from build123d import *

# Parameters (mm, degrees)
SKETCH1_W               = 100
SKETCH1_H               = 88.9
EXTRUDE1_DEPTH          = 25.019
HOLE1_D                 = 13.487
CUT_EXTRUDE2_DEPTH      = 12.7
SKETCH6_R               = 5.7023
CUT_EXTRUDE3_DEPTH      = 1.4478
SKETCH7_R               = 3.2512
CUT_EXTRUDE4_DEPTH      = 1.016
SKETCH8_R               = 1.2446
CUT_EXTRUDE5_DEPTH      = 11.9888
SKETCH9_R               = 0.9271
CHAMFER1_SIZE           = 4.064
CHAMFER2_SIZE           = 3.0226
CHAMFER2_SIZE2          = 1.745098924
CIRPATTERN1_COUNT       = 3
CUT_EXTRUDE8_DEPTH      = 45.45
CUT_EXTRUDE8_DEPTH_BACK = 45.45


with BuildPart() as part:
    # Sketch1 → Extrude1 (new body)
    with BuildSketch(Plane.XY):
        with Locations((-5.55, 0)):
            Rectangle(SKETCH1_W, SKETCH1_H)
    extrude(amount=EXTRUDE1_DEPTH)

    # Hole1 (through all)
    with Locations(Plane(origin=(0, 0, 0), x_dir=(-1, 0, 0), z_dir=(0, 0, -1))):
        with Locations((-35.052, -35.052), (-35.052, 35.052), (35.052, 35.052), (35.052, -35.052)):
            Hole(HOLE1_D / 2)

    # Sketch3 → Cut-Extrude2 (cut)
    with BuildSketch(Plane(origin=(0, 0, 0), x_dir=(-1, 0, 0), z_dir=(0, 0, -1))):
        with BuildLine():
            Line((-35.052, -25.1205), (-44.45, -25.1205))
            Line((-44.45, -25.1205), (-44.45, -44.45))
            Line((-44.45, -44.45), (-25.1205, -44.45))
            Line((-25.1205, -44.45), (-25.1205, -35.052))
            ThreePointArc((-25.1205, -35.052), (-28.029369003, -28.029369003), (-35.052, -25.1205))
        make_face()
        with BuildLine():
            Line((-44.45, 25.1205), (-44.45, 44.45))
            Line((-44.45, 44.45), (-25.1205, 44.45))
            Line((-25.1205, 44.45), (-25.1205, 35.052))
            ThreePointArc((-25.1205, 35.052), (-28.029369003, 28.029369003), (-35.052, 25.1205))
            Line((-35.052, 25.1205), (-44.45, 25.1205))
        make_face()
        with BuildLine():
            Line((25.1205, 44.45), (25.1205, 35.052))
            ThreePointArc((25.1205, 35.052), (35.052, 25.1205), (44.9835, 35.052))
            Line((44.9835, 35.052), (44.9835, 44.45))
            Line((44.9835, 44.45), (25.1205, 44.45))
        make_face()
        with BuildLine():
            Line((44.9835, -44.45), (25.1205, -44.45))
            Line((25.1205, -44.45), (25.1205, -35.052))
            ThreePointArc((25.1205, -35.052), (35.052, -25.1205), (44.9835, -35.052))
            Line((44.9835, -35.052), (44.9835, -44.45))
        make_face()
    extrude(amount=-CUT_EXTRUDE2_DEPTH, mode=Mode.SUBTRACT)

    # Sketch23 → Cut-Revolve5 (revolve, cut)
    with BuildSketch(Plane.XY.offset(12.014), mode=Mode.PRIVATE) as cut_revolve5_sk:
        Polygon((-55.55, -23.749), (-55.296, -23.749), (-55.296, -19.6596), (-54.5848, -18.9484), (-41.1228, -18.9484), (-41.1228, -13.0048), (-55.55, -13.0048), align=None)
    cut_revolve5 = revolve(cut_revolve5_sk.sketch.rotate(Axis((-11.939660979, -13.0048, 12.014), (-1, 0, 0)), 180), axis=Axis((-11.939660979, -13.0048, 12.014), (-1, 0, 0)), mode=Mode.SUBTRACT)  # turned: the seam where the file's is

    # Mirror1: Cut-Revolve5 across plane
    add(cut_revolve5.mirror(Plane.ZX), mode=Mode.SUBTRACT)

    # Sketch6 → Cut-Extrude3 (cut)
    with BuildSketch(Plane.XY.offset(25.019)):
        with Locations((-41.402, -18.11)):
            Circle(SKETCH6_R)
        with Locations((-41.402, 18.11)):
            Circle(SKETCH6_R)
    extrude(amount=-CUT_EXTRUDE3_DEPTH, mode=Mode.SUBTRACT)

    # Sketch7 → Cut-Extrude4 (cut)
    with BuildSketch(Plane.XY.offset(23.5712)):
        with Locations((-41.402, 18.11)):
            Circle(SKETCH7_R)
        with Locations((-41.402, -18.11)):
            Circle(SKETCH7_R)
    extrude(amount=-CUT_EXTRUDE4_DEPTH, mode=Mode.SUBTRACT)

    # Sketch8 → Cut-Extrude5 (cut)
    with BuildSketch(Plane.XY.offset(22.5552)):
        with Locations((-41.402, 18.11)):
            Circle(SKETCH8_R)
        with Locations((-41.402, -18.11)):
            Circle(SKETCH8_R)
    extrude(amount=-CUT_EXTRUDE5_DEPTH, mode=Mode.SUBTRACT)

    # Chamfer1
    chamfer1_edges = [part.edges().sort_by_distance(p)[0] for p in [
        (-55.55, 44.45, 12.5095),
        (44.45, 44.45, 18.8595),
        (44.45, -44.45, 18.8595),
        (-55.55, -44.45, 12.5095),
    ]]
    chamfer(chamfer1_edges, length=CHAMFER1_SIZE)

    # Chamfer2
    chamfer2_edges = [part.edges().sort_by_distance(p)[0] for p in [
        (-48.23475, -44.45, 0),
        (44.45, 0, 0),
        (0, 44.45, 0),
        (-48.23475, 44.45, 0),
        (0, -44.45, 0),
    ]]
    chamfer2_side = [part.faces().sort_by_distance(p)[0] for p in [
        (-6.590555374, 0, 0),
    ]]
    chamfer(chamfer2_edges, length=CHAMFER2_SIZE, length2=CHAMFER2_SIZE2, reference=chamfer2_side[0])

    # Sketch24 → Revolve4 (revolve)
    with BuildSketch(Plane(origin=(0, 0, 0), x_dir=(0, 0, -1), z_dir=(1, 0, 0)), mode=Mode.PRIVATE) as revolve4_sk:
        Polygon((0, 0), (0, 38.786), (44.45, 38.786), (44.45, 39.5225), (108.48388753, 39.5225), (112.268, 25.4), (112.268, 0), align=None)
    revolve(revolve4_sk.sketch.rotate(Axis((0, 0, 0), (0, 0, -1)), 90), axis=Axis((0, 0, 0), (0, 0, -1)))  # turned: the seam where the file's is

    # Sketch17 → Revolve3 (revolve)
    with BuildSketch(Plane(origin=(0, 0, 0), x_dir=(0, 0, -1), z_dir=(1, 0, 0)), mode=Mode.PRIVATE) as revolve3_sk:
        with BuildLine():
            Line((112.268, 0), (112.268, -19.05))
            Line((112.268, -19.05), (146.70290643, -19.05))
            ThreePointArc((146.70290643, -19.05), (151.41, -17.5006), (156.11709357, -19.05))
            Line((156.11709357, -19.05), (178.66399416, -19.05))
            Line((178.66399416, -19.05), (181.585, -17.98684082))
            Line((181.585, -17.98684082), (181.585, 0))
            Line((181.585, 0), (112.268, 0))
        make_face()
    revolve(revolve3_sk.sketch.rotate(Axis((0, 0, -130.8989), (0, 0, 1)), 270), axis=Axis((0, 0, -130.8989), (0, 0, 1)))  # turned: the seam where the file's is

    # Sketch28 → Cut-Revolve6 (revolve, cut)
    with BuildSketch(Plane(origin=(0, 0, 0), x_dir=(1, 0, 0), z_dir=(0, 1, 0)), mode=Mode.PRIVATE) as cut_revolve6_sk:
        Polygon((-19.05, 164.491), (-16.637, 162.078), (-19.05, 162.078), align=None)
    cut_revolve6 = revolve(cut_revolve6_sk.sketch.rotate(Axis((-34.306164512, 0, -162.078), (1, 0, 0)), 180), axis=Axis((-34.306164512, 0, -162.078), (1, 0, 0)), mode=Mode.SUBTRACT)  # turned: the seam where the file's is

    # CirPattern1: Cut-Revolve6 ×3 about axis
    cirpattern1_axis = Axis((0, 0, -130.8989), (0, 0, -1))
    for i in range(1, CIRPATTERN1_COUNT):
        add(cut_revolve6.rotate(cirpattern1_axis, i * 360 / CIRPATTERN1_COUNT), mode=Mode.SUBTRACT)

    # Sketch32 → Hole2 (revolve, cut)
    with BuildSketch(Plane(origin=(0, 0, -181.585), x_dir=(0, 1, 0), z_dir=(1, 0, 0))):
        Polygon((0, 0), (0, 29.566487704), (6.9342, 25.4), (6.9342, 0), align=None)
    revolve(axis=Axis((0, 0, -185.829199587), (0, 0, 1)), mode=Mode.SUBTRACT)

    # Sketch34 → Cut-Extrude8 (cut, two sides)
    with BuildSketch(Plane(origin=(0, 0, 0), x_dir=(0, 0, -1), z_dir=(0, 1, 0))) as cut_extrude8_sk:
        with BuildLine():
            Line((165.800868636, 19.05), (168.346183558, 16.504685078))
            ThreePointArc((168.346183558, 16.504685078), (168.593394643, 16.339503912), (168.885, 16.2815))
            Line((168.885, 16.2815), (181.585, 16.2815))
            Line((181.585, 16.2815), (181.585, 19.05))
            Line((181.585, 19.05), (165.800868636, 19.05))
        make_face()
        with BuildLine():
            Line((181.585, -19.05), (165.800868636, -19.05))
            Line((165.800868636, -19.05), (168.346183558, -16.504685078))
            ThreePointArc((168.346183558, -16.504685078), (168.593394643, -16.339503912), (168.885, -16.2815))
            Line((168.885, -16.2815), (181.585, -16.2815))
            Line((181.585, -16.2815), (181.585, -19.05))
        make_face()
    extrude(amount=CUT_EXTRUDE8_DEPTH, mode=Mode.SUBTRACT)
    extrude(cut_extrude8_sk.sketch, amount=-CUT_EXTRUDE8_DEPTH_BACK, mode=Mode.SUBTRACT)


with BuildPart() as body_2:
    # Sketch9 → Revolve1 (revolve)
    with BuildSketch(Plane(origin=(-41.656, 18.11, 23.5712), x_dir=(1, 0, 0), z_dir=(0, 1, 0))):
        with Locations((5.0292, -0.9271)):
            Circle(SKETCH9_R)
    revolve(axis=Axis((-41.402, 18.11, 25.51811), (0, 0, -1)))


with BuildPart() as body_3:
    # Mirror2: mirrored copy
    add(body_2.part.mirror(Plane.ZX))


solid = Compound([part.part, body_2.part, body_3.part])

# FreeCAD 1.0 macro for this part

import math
import FreeCAD as App
import Part
import Sketcher

V = App.Vector
Q = App.Units.Quantity


def edges_at(feature, points):
    """Names of the edges that pass closest to the given points."""
    edges = feature.Shape.Edges
    near = lambda p: min(range(len(edges)), key=lambda i: edges[i].distToShape(Part.Vertex(*p))[0])
    return sorted({f"Edge{near(p) + 1}" for p in points})

doc = App.newDocument("Part")
body = doc.addObject("PartDesign::Body", "Body")

sketch1 = body.newObject("Sketcher::SketchObject", "Sketch")
sketch1.AttachmentSupport = (doc.getObject("XY_Plane"), [""])
sketch1.MapMode = "FlatFace"
sketch1.addGeometry(Part.LineSegment(V(-55.55, 44.45, 0), V(-55.55, -44.45, 0)), False)
sketch1.addGeometry(Part.LineSegment(V(-55.55, -44.45, 0), V(44.45, -44.45, 0)), False)
sketch1.addGeometry(Part.LineSegment(V(44.45, -44.45, 0), V(44.45, 44.45, 0)), False)
sketch1.addGeometry(Part.LineSegment(V(44.45, 44.45, 0), V(-55.55, 44.45, 0)), False)
sketch1.addConstraint(Sketcher.Constraint("Coincident", 0, 2, 1, 1))
sketch1.addConstraint(Sketcher.Constraint("Coincident", 1, 2, 2, 1))
sketch1.addConstraint(Sketcher.Constraint("Coincident", 2, 2, 3, 1))
sketch1.addConstraint(Sketcher.Constraint("Coincident", 3, 2, 0, 1))
sketch1.addConstraint(Sketcher.Constraint("Vertical", 0))
sketch1.addConstraint(Sketcher.Constraint("Horizontal", 1))
sketch1.addConstraint(Sketcher.Constraint("Vertical", 2))
sketch1.addConstraint(Sketcher.Constraint("Horizontal", 3))
sketch1.addConstraint(Sketcher.Constraint("DistanceY", 0, 2, 0, 1, Q("3.5 in")))
sketch1.addConstraint(Sketcher.Constraint("DistanceY", 0, 2, -1, 1, Q("1.75 in")))
sketch1.addConstraint(Sketcher.Constraint("DistanceX", -1, 1, 1, 2, Q("1.75 in")))
sketch1.addConstraint(Sketcher.Constraint("DistanceX", 1, 1, 1, 2, Q("100 mm")))
pad1 = body.newObject("PartDesign::Pad", "Pad")
pad1.Profile = sketch1
pad1.Length = Q("0.985 in")

sketch2 = body.newObject("Sketcher::SketchObject", "Sketch001")
sketch2.AttachmentSupport = (doc.getObject("XY_Plane"), [""])
sketch2.MapMode = "FlatFace"
sketch2.addGeometry(Part.Circle(V(35.052, -35.052, 0), V(0, 0, 1), 6.7435), False)
sketch2.addGeometry(Part.Circle(V(35.052, 35.052, 0), V(0, 0, 1), 6.7435), False)
sketch2.addGeometry(Part.Circle(V(-35.052, 35.052, 0), V(0, 0, 1), 6.7435), False)
sketch2.addGeometry(Part.Circle(V(-35.052, -35.052, 0), V(0, 0, 1), 6.7435), False)
sketch2.addConstraint(Sketcher.Constraint("Equal", 0, 1))
sketch2.addConstraint(Sketcher.Constraint("Equal", 1, 2))
sketch2.addConstraint(Sketcher.Constraint("Equal", 2, 3))
sketch2.addConstraint(Sketcher.Constraint("Symmetric", 0, 3, 2, 3, -1, 1))
sketch2.addConstraint(Sketcher.Constraint("Symmetric", 1, 3, 3, 3, -1, 1))
sketch2.addConstraint(Sketcher.Constraint("Symmetric", 1, 3, 2, 3, -2))
sketch2.addConstraint(Sketcher.Constraint("Diameter", 0, Q("13.487 mm")))
sketch2.addConstraint(Sketcher.Constraint("DistanceX", -1, 1, 0, 3, Q("1.38 in")))
sketch2.addConstraint(Sketcher.Constraint("DistanceY", 0, 3, -1, 1, Q("1.38 in")))
doc.recompute()
hole = body.newObject("PartDesign::Hole", "Hole")
hole.Profile = sketch2
hole.ThreadType = "None"
hole.Diameter = 13.487
hole.DepthType = "ThroughAll"
hole.Reversed = True

sketch3 = body.newObject("Sketcher::SketchObject", "Sketch002")
sketch3.AttachmentSupport = (doc.getObject("XY_Plane"), [""])
sketch3.MapMode = "FlatFace"
sketch3.addGeometry(Part.LineSegment(V(35.052, -25.1205, 0), V(44.45, -25.1205, 0)), False)
sketch3.addGeometry(Part.LineSegment(V(44.45, -25.1205, 0), V(44.45, -44.45, 0)), False)
sketch3.addGeometry(Part.LineSegment(V(44.45, -44.45, 0), V(25.1205, -44.45, 0)), False)
sketch3.addGeometry(Part.LineSegment(V(25.1205, -44.45, 0), V(25.1205, -35.052, 0)), False)
sketch3.addGeometry(Part.ArcOfCircle(Part.Circle(V(35.052, -35.052, 0), V(0, 0, 1), 9.9315), math.radians(90), math.radians(180)), False)
sketch3.addGeometry(Part.LineSegment(V(44.45, 44.45, 0), V(44.45, 25.1205, 0)), False)
sketch3.addGeometry(Part.LineSegment(V(44.45, 25.1205, 0), V(35.052, 25.1205, 0)), False)
sketch3.addGeometry(Part.ArcOfCircle(Part.Circle(V(35.052, 35.052, 0), V(0, 0, 1), 9.9315), math.radians(-180), math.radians(-90)), False)
sketch3.addGeometry(Part.LineSegment(V(25.1205, 35.052, 0), V(25.1205, 44.45, 0)), False)
sketch3.addGeometry(Part.LineSegment(V(25.1205, 44.45, 0), V(44.45, 44.45, 0)), False)
sketch3.addGeometry(Part.LineSegment(V(-25.1205, 44.45, 0), V(-25.1205, 35.052, 0)), False)
sketch3.addGeometry(Part.ArcOfCircle(Part.Circle(V(-35.052, 35.052, 0), V(0, 0, 1), 9.9315), math.radians(180), math.radians(360)), False)
sketch3.addGeometry(Part.LineSegment(V(-44.9835, 35.052, 0), V(-44.9835, 44.45, 0)), False)
sketch3.addGeometry(Part.LineSegment(V(-44.9835, 44.45, 0), V(-25.1205, 44.45, 0)), False)
sketch3.addGeometry(Part.LineSegment(V(-25.1205, -44.45, 0), V(-44.9835, -44.45, 0)), False)
sketch3.addGeometry(Part.LineSegment(V(-44.9835, -44.45, 0), V(-44.9835, -35.052, 0)), False)
sketch3.addGeometry(Part.ArcOfCircle(Part.Circle(V(-35.052, -35.052, 0), V(0, 0, 1), 9.9315), math.radians(0), math.radians(180)), False)
sketch3.addGeometry(Part.LineSegment(V(-25.1205, -35.052, 0), V(-25.1205, -44.45, 0)), False)
sketch3.addConstraint(Sketcher.Constraint("Coincident", 0, 2, 1, 1))
sketch3.addConstraint(Sketcher.Constraint("Coincident", 1, 2, 2, 1))
sketch3.addConstraint(Sketcher.Constraint("Coincident", 2, 2, 3, 1))
sketch3.addConstraint(Sketcher.Constraint("Tangent", 3, 2, 4, 2))
sketch3.addConstraint(Sketcher.Constraint("Tangent", 4, 1, 0, 1))
sketch3.addConstraint(Sketcher.Constraint("Coincident", 5, 2, 6, 1))
sketch3.addConstraint(Sketcher.Constraint("Tangent", 6, 2, 7, 2))
sketch3.addConstraint(Sketcher.Constraint("Tangent", 7, 1, 8, 1))
sketch3.addConstraint(Sketcher.Constraint("Coincident", 8, 2, 9, 1))
sketch3.addConstraint(Sketcher.Constraint("Coincident", 9, 2, 5, 1))
sketch3.addConstraint(Sketcher.Constraint("Tangent", 10, 2, 11, 2))
sketch3.addConstraint(Sketcher.Constraint("Tangent", 11, 1, 12, 1))
sketch3.addConstraint(Sketcher.Constraint("Coincident", 12, 2, 13, 1))
sketch3.addConstraint(Sketcher.Constraint("Coincident", 13, 2, 10, 1))
sketch3.addConstraint(Sketcher.Constraint("Coincident", 14, 2, 15, 1))
sketch3.addConstraint(Sketcher.Constraint("Tangent", 15, 2, 16, 2))
sketch3.addConstraint(Sketcher.Constraint("Tangent", 16, 1, 17, 1))
sketch3.addConstraint(Sketcher.Constraint("Coincident", 17, 2, 14, 1))
sketch3.addConstraint(Sketcher.Constraint("Horizontal", 0))
sketch3.addConstraint(Sketcher.Constraint("Vertical", 1))
sketch3.addConstraint(Sketcher.Constraint("Horizontal", 2))
sketch3.addConstraint(Sketcher.Constraint("Vertical", 3))
sketch3.addConstraint(Sketcher.Constraint("Vertical", 5))
sketch3.addConstraint(Sketcher.Constraint("Horizontal", 6))
sketch3.addConstraint(Sketcher.Constraint("Vertical", 8))
sketch3.addConstraint(Sketcher.Constraint("Horizontal", 9))
sketch3.addConstraint(Sketcher.Constraint("Vertical", 10))
sketch3.addConstraint(Sketcher.Constraint("Vertical", 12))
sketch3.addConstraint(Sketcher.Constraint("Horizontal", 13))
sketch3.addConstraint(Sketcher.Constraint("Horizontal", 14))
sketch3.addConstraint(Sketcher.Constraint("Vertical", 15))
sketch3.addConstraint(Sketcher.Constraint("Vertical", 17))
sketch3.addConstraint(Sketcher.Constraint("Equal", 4, 7))
sketch3.addConstraint(Sketcher.Constraint("Equal", 7, 11))
sketch3.addConstraint(Sketcher.Constraint("Equal", 11, 16))
sketch3.addConstraint(Sketcher.Constraint("Symmetric", 4, 3, 11, 3, -1, 1))
sketch3.addConstraint(Sketcher.Constraint("Symmetric", 7, 3, 16, 3, -1, 1))
sketch3.addConstraint(Sketcher.Constraint("Symmetric", 7, 3, 11, 3, -2))
sketch3.addConstraint(Sketcher.Constraint("Symmetric", 1, 2, 9, 2, -1))
sketch3.addConstraint(Sketcher.Constraint("Horizontal", 9, 2, 12, 2))
sketch3.addConstraint(Sketcher.Constraint("Horizontal", 2, 2, 14, 2))
sketch3.addConstraint(Sketcher.Constraint("Equal", 9, 1))
sketch3.addConstraint(Sketcher.Constraint("DistanceX", 0, 1, 0, 2, Q("0.37 in")))
sketch3.addConstraint(Sketcher.Constraint("DistanceX", -1, 1, 4, 3, Q("1.38 in")))
sketch3.addConstraint(Sketcher.Constraint("DistanceY", 4, 3, -1, 1, Q("1.38 in")))
sketch3.addConstraint(Sketcher.Constraint("Radius", 4, Q("9.9315 mm")))
pocket1 = body.newObject("PartDesign::Pocket", "Pocket")
pocket1.Profile = sketch3
pocket1.Length = Q("0.5 in")
pocket1.Reversed = True

sketch4 = body.newObject("Sketcher::SketchObject", "Sketch003")
sketch4.AttachmentSupport = (doc.getObject("XY_Plane"), [""])
sketch4.MapMode = "FlatFace"
sketch4.AttachmentOffset = App.Placement(V(0, 0, 12.014), App.Rotation())
sketch4.addGeometry(Part.LineSegment(V(-55.55, -23.749, 0), V(-55.296, -23.749, 0)), False)
sketch4.addGeometry(Part.LineSegment(V(-55.296, -23.749, 0), V(-55.296, -19.6596, 0)), False)
sketch4.addGeometry(Part.LineSegment(V(-55.296, -19.6596, 0), V(-54.5848, -18.9484, 0)), False)
sketch4.addGeometry(Part.LineSegment(V(-54.5848, -18.9484, 0), V(-41.1228, -18.9484, 0)), False)
sketch4.addGeometry(Part.LineSegment(V(-41.1228, -18.9484, 0), V(-41.1228, -13.0048, 0)), False)
sketch4.addGeometry(Part.LineSegment(V(-41.1228, -13.0048, 0), V(-55.55, -13.0048, 0)), False)
sketch4.addGeometry(Part.LineSegment(V(-55.55, -13.0048, 0), V(-55.55, -23.749, 0)), False)
sketch4.addGeometry(Part.LineSegment(V(-41.1228, -13.0048, 0), V(-55.55, -13.0048, 0)), True)
sketch4.addConstraint(Sketcher.Constraint("Coincident", 0, 2, 1, 1))
sketch4.addConstraint(Sketcher.Constraint("Coincident", 1, 2, 2, 1))
sketch4.addConstraint(Sketcher.Constraint("Coincident", 2, 2, 3, 1))
sketch4.addConstraint(Sketcher.Constraint("Coincident", 3, 2, 4, 1))
sketch4.addConstraint(Sketcher.Constraint("Coincident", 4, 2, 5, 1))
sketch4.addConstraint(Sketcher.Constraint("Coincident", 5, 2, 6, 1))
sketch4.addConstraint(Sketcher.Constraint("Coincident", 6, 2, 0, 1))
sketch4.addConstraint(Sketcher.Constraint("Horizontal", 0))
sketch4.addConstraint(Sketcher.Constraint("Vertical", 1))
sketch4.addConstraint(Sketcher.Constraint("Horizontal", 3))
sketch4.addConstraint(Sketcher.Constraint("Vertical", 4))
sketch4.addConstraint(Sketcher.Constraint("Horizontal", 5))
sketch4.addConstraint(Sketcher.Constraint("Vertical", 6))
sketch4.addConstraint(Sketcher.Constraint("Horizontal", 7))
sketch4.addConstraint(Sketcher.Constraint("Coincident", 7, 1, 4, 2))
sketch4.addConstraint(Sketcher.Constraint("Vertical", 6, 2, 7, 2))
sketch4.addConstraint(Sketcher.Constraint("Angle", 2, Q("45 deg")))
sketch4.addConstraint(Sketcher.Constraint("DistanceX", 0, 1, 0, 2, Q("0.01 in")))
sketch4.addConstraint(Sketcher.Constraint("DistanceX", 3, 1, 3, 2, Q("0.53 in")))
sketch4.addConstraint(Sketcher.Constraint("DistanceX", 5, 2, 5, 1, Q("0.568 in")))
sketch4.addConstraint(Sketcher.Constraint("DistanceY", 1, 1, 1, 2, Q("0.161 in")))
sketch4.addConstraint(Sketcher.Constraint("DistanceY", 4, 1, 4, 2, Q("0.234 in")))
sketch4.addConstraint(Sketcher.Constraint("DistanceY", 0, 2, -1, 1, Q("0.935 in")))
sketch4.addConstraint(Sketcher.Constraint("DistanceX", 0, 2, -1, 1, Q("55.296 mm")))
groove = body.newObject("PartDesign::Groove", "Groove")
groove.Profile = sketch4
groove.ReferenceAxis = (sketch4, ["Axis0"])
groove.Angle = 360
doc.recompute()

mirrored = body.newObject("PartDesign::Mirrored", "Mirrored")
mirrored.Originals = [groove]
mirrored.MirrorPlane = (doc.getObject("XZ_Plane"), [""])
body.Tip = mirrored

sketch5 = body.newObject("Sketcher::SketchObject", "Sketch004")
sketch5.AttachmentSupport = (doc.getObject("XY_Plane"), [""])
sketch5.MapMode = "FlatFace"
sketch5.AttachmentOffset = App.Placement(V(0, 0, 0.985 * 25.4), App.Rotation())
sketch5.addGeometry(Part.Circle(V(-41.402, -18.11, 0), V(0, 0, 1), 5.7023), False)
sketch5.addGeometry(Part.Circle(V(-41.402, 18.11, 0), V(0, 0, 1), 5.7023), False)
sketch5.addConstraint(Sketcher.Constraint("Equal", 0, 1))
sketch5.addConstraint(Sketcher.Constraint("Symmetric", 0, 3, 1, 3, -1))
sketch5.addConstraint(Sketcher.Constraint("Diameter", 0, Q("0.449 in")))
sketch5.addConstraint(Sketcher.Constraint("DistanceX", 0, 3, -1, 1, Q("1.63 in")))
sketch5.addConstraint(Sketcher.Constraint("DistanceY", 0, 3, -1, 1, Q("18.11 mm")))
pocket2 = body.newObject("PartDesign::Pocket", "Pocket001")
pocket2.Profile = sketch5
pocket2.Length = Q("0.057 in")

sketch6 = body.newObject("Sketcher::SketchObject", "Sketch005")
sketch6.AttachmentSupport = (doc.getObject("XY_Plane"), [""])
sketch6.MapMode = "FlatFace"
sketch6.AttachmentOffset = App.Placement(V(0, 0, 0.928 * 25.4), App.Rotation())
sketch6.addGeometry(Part.Circle(V(-41.402, 18.11, 0), V(0, 0, 1), 3.2512), False)
sketch6.addGeometry(Part.Circle(V(-41.402, -18.11, 0), V(0, 0, 1), 3.2512), False)
sketch6.addConstraint(Sketcher.Constraint("Equal", 0, 1))
sketch6.addConstraint(Sketcher.Constraint("Symmetric", 0, 3, 1, 3, -1))
sketch6.addConstraint(Sketcher.Constraint("Diameter", 0, Q("0.256 in")))
sketch6.addConstraint(Sketcher.Constraint("DistanceX", 0, 3, -1, 1, Q("1.63 in")))
sketch6.addConstraint(Sketcher.Constraint("DistanceY", -1, 1, 0, 3, Q("18.11 mm")))
pocket3 = body.newObject("PartDesign::Pocket", "Pocket002")
pocket3.Profile = sketch6
pocket3.Length = Q("0.04 in")

sketch7 = body.newObject("Sketcher::SketchObject", "Sketch006")
sketch7.AttachmentSupport = (doc.getObject("XY_Plane"), [""])
sketch7.MapMode = "FlatFace"
sketch7.AttachmentOffset = App.Placement(V(0, 0, 0.888 * 25.4), App.Rotation())
sketch7.addGeometry(Part.Circle(V(-41.402, 18.11, 0), V(0, 0, 1), 1.2446), False)
sketch7.addGeometry(Part.Circle(V(-41.402, -18.11, 0), V(0, 0, 1), 1.2446), False)
sketch7.addConstraint(Sketcher.Constraint("Equal", 0, 1))
sketch7.addConstraint(Sketcher.Constraint("Symmetric", 0, 3, 1, 3, -1))
sketch7.addConstraint(Sketcher.Constraint("Diameter", 0, Q("0.098 in")))
sketch7.addConstraint(Sketcher.Constraint("DistanceX", 0, 3, -1, 1, Q("1.63 in")))
sketch7.addConstraint(Sketcher.Constraint("DistanceY", -1, 1, 0, 3, Q("18.11 mm")))
pocket4 = body.newObject("PartDesign::Pocket", "Pocket003")
pocket4.Profile = sketch7
pocket4.Length = Q("0.472 in")
doc.recompute()

chamfer = body.newObject("PartDesign::Chamfer", "Chamfer")
chamfer.Base = (pocket4, edges_at(pocket4, [
    (-55.55, 44.45, 12.509),
    (44.45, 44.45, 18.86),
    (44.45, -44.45, 18.86),
    (-55.55, -44.45, 12.509),
]))
chamfer.Size = Q("0.16 in")
doc.recompute()

chamfer2 = body.newObject("PartDesign::Chamfer", "Chamfer001")
chamfer2.Base = (chamfer, edges_at(chamfer, [
    (-48.235, -44.45, 0),
    (44.45, 0, 0),
    (0, 44.45, 0),
    (-48.235, 44.45, 0),
    (0, -44.45, 0),
]))
chamfer2.ChamferType = "Two distances"
chamfer2.Size = Q("0.119 in")
chamfer2.Size2 = 1.745099

sketch8 = body.newObject("Sketcher::SketchObject", "Sketch007")
sketch8.AttachmentSupport = (doc.getObject("YZ_Plane"), [""])
sketch8.MapMode = "FlatFace"
sketch8.addGeometry(Part.LineSegment(V(38.786, 0, 0), V(0, 0, 0)), False)
sketch8.addGeometry(Part.LineSegment(V(0, 0, 0), V(0, -112.268, 0)), False)
sketch8.addGeometry(Part.LineSegment(V(0, -112.268, 0), V(25.4, -112.268, 0)), False)
sketch8.addGeometry(Part.LineSegment(V(25.4, -112.268, 0), V(39.5225, -108.483888, 0)), False)
sketch8.addGeometry(Part.LineSegment(V(39.5225, -108.483888, 0), V(39.5225, -44.45, 0)), False)
sketch8.addGeometry(Part.LineSegment(V(39.5225, -44.45, 0), V(38.786, -44.45, 0)), False)
sketch8.addGeometry(Part.LineSegment(V(38.786, -44.45, 0), V(38.786, 0, 0)), False)
sketch8.addConstraint(Sketcher.Constraint("Coincident", 0, 2, 1, 1))
sketch8.addConstraint(Sketcher.Constraint("Coincident", 1, 2, 2, 1))
sketch8.addConstraint(Sketcher.Constraint("Coincident", 2, 2, 3, 1))
sketch8.addConstraint(Sketcher.Constraint("Coincident", 3, 2, 4, 1))
sketch8.addConstraint(Sketcher.Constraint("Coincident", 4, 2, 5, 1))
sketch8.addConstraint(Sketcher.Constraint("Coincident", 5, 2, 6, 1))
sketch8.addConstraint(Sketcher.Constraint("Coincident", 6, 2, 0, 1))
sketch8.addConstraint(Sketcher.Constraint("Horizontal", 0))
sketch8.addConstraint(Sketcher.Constraint("Vertical", 1))
sketch8.addConstraint(Sketcher.Constraint("Horizontal", 2))
sketch8.addConstraint(Sketcher.Constraint("Vertical", 4))
sketch8.addConstraint(Sketcher.Constraint("Horizontal", 5))
sketch8.addConstraint(Sketcher.Constraint("Vertical", 6))
sketch8.addConstraint(Sketcher.Constraint("Coincident", 0, 2, -1, 1))
sketch8.addConstraint(Sketcher.Constraint("DistanceX", 2, 1, 2, 2, Q("1 in")))
sketch8.addConstraint(Sketcher.Constraint("Angle", 3, Q("15 deg")))
sketch8.addConstraint(Sketcher.Constraint("DistanceY", 1, 2, 1, 1, Q("4.42 in")))
sketch8.addConstraint(Sketcher.Constraint("DistanceY", 6, 1, 6, 2, Q("1.75 in")))
sketch8.addConstraint(Sketcher.Constraint("DistanceX", 0, 2, 0, 1, Q("38.786 mm")))
sketch8.addConstraint(Sketcher.Constraint("DistanceX", 5, 2, 5, 1, Q("0.7365 mm")))
revolution = body.newObject("PartDesign::Revolution", "Revolution")
revolution.Profile = sketch8
revolution.ReferenceAxis = (sketch8, ["V_Axis"])
revolution.Angle = 360

sketch9 = body.newObject("Sketcher::SketchObject", "Sketch008")
sketch9.AttachmentSupport = (doc.getObject("YZ_Plane"), [""])
sketch9.MapMode = "FlatFace"
sketch9.addGeometry(Part.LineSegment(V(0, -112.268, 0), V(-19.05, -112.268, 0)), False)
sketch9.addGeometry(Part.LineSegment(V(-19.05, -112.268, 0), V(-19.05, -146.702906, 0)), False)
sketch9.addGeometry(Part.ArcOfCircle(Part.Circle(V(-25.4254, -151.41, 0), V(0, 0, 1), 7.9248), math.radians(-36.439242), math.radians(36.439242)), False)
sketch9.addGeometry(Part.LineSegment(V(-19.05, -156.117094, 0), V(-19.05, -178.663994, 0)), False)
sketch9.addGeometry(Part.LineSegment(V(-19.05, -178.663994, 0), V(-17.986841, -181.585, 0)), False)
sketch9.addGeometry(Part.LineSegment(V(-17.986841, -181.585, 0), V(0, -181.585, 0)), False)
sketch9.addGeometry(Part.LineSegment(V(0, -181.585, 0), V(0, -112.268, 0)), False)
sketch9.addConstraint(Sketcher.Constraint("Coincident", 0, 2, 1, 1))
sketch9.addConstraint(Sketcher.Constraint("Coincident", 1, 2, 2, 2))
sketch9.addConstraint(Sketcher.Constraint("Coincident", 2, 1, 3, 1))
sketch9.addConstraint(Sketcher.Constraint("Coincident", 3, 2, 4, 1))
sketch9.addConstraint(Sketcher.Constraint("Coincident", 4, 2, 5, 1))
sketch9.addConstraint(Sketcher.Constraint("Coincident", 5, 2, 6, 1))
sketch9.addConstraint(Sketcher.Constraint("Coincident", 6, 2, 0, 1))
sketch9.addConstraint(Sketcher.Constraint("Horizontal", 0))
sketch9.addConstraint(Sketcher.Constraint("Vertical", 1))
sketch9.addConstraint(Sketcher.Constraint("Vertical", 3))
sketch9.addConstraint(Sketcher.Constraint("Horizontal", 5))
sketch9.addConstraint(Sketcher.Constraint("Vertical", 6))
sketch9.addConstraint(Sketcher.Constraint("PointOnObject", 5, 2, -2))
sketch9.addConstraint(Sketcher.Constraint("Vertical", 1, 2, 2, 1))
sketch9.addConstraint(Sketcher.Constraint("Angle", 4, Q("-70 deg")))
sketch9.addConstraint(Sketcher.Constraint("Radius", 2, Q("0.312 in")))
sketch9.addConstraint(Sketcher.Constraint("DistanceX", 0, 2, 0, 1, Q("0.75 in")))
sketch9.addConstraint(Sketcher.Constraint("DistanceY", 0, 2, -1, 1, Q("4.42 in")))
sketch9.addConstraint(Sketcher.Constraint("DistanceX", 2, 3, -1, 1, Q("1.001 in")))
sketch9.addConstraint(Sketcher.Constraint("DistanceY", 3, 2, 3, 1, Q("22.546901 mm")))
sketch9.addConstraint(Sketcher.Constraint("DistanceY", 6, 1, 6, 2, Q("69.317 mm")))
sketch9.addConstraint(Sketcher.Constraint("DistanceX", 5, 1, 5, 2, Q("17.986841 mm")))
revolution2 = body.newObject("PartDesign::Revolution", "Revolution001")
revolution2.Profile = sketch9
revolution2.ReferenceAxis = (sketch9, ["V_Axis"])
revolution2.Angle = 360

sketch10 = body.newObject("Sketcher::SketchObject", "Sketch009")
sketch10.AttachmentSupport = (doc.getObject("XZ_Plane"), [""])
sketch10.MapMode = "FlatFace"
sketch10.addGeometry(Part.LineSegment(V(-16.637, -162.078, 0), V(-19.05, -164.491, 0)), False)
sketch10.addGeometry(Part.LineSegment(V(-19.05, -164.491, 0), V(-19.05, -162.078, 0)), False)
sketch10.addGeometry(Part.LineSegment(V(-19.05, -162.078, 0), V(-16.637, -162.078, 0)), False)
sketch10.addGeometry(Part.LineSegment(V(-19.05, -162.078, 0), V(-16.637, -162.078, 0)), True)
sketch10.addConstraint(Sketcher.Constraint("Coincident", 0, 2, 1, 1))
sketch10.addConstraint(Sketcher.Constraint("Coincident", 1, 2, 2, 1))
sketch10.addConstraint(Sketcher.Constraint("Coincident", 2, 2, 0, 1))
sketch10.addConstraint(Sketcher.Constraint("Vertical", 1))
sketch10.addConstraint(Sketcher.Constraint("Horizontal", 2))
sketch10.addConstraint(Sketcher.Constraint("Horizontal", 3))
sketch10.addConstraint(Sketcher.Constraint("Coincident", 3, 1, 1, 2))
sketch10.addConstraint(Sketcher.Constraint("Equal", 2, 3))
sketch10.addConstraint(Sketcher.Constraint("Equal", 3, 1))
sketch10.addConstraint(Sketcher.Constraint("DistanceX", 2, 1, 2, 2, Q("0.095 in")))
sketch10.addConstraint(Sketcher.Constraint("DistanceX", 0, 2, -1, 1, Q("0.75 in")))
sketch10.addConstraint(Sketcher.Constraint("DistanceY", 0, 2, -1, 1, Q("164.491 mm")))
groove2 = body.newObject("PartDesign::Groove", "Groove001")
groove2.Profile = sketch10
groove2.ReferenceAxis = (sketch10, ["Axis0"])
groove2.Angle = 360
doc.recompute()

polarpattern = body.newObject("PartDesign::PolarPattern", "PolarPattern")
polarpattern.Originals = [groove2]
polarpattern.Axis = (doc.getObject("Z_Axis"), [""])
polarpattern.Angle = 360
polarpattern.Occurrences = 3
body.Tip = polarpattern

sketch11 = body.newObject("Sketcher::SketchObject", "Sketch010")
sketch11.AttachmentSupport = (doc.getObject("YZ_Plane"), [""])
sketch11.MapMode = "FlatFace"
sketch11.addGeometry(Part.LineSegment(V(0, -152.018512, 0), V(0, -181.585, 0)), False)
sketch11.addGeometry(Part.LineSegment(V(0, -181.585, 0), V(6.9342, -181.585, 0)), False)
sketch11.addGeometry(Part.LineSegment(V(6.9342, -181.585, 0), V(6.9342, -156.185, 0)), False)
sketch11.addGeometry(Part.LineSegment(V(6.9342, -156.185, 0), V(0, -152.018512, 0)), False)
sketch11.addConstraint(Sketcher.Constraint("Coincident", 0, 2, 1, 1))
sketch11.addConstraint(Sketcher.Constraint("Coincident", 1, 2, 2, 1))
sketch11.addConstraint(Sketcher.Constraint("Coincident", 2, 2, 3, 1))
sketch11.addConstraint(Sketcher.Constraint("Coincident", 3, 2, 0, 1))
sketch11.addConstraint(Sketcher.Constraint("Vertical", 0))
sketch11.addConstraint(Sketcher.Constraint("Horizontal", 1))
sketch11.addConstraint(Sketcher.Constraint("Vertical", 2))
sketch11.addConstraint(Sketcher.Constraint("PointOnObject", 0, 2, -2))
sketch11.addConstraint(Sketcher.Constraint("DistanceY", 2, 1, 2, 2, Q("1 in")))
sketch11.addConstraint(Sketcher.Constraint("Angle", 3, Q("149 deg")))
sketch11.addConstraint(Sketcher.Constraint("DistanceX", 1, 1, 1, 2, Q("0.273 in")))
sketch11.addConstraint(Sketcher.Constraint("DistanceY", 0, 2, -1, 1, Q("181.585 mm")))
groove3 = body.newObject("PartDesign::Groove", "Groove002")
groove3.Profile = sketch11
groove3.ReferenceAxis = (sketch11, ["V_Axis"])
groove3.Angle = 360

sketch12 = body.newObject("Sketcher::SketchObject", "Sketch011")
sketch12.AttachmentSupport = (doc.getObject("XZ_Plane"), [""])
sketch12.MapMode = "FlatFace"
sketch12.addGeometry(Part.LineSegment(V(-19.05, -165.800869, 0), V(-16.504685, -168.346184, 0)), False)
sketch12.addGeometry(Part.ArcOfCircle(Part.Circle(V(-17.043502, -168.885, 0), V(0, 0, 1), 0.762002), math.radians(0), math.radians(45)), False)
sketch12.addGeometry(Part.LineSegment(V(-16.2815, -168.885, 0), V(-16.2815, -181.585, 0)), False)
sketch12.addGeometry(Part.LineSegment(V(-16.2815, -181.585, 0), V(-19.05, -181.585, 0)), False)
sketch12.addGeometry(Part.LineSegment(V(-19.05, -181.585, 0), V(-19.05, -165.800869, 0)), False)
sketch12.addGeometry(Part.LineSegment(V(19.05, -165.800869, 0), V(19.05, -181.585, 0)), False)
sketch12.addGeometry(Part.LineSegment(V(19.05, -181.585, 0), V(16.2815, -181.585, 0)), False)
sketch12.addGeometry(Part.LineSegment(V(16.2815, -181.585, 0), V(16.2815, -168.885, 0)), False)
sketch12.addGeometry(Part.ArcOfCircle(Part.Circle(V(17.043502, -168.885, 0), V(0, 0, 1), 0.762002), math.radians(135), math.radians(180)), False)
sketch12.addGeometry(Part.LineSegment(V(16.504685, -168.346184, 0), V(19.05, -165.800869, 0)), False)
sketch12.addConstraint(Sketcher.Constraint("Tangent", 0, 2, 1, 2))
sketch12.addConstraint(Sketcher.Constraint("Tangent", 1, 1, 2, 1))
sketch12.addConstraint(Sketcher.Constraint("Coincident", 2, 2, 3, 1))
sketch12.addConstraint(Sketcher.Constraint("Coincident", 3, 2, 4, 1))
sketch12.addConstraint(Sketcher.Constraint("Coincident", 4, 2, 0, 1))
sketch12.addConstraint(Sketcher.Constraint("Coincident", 5, 2, 6, 1))
sketch12.addConstraint(Sketcher.Constraint("Coincident", 6, 2, 7, 1))
sketch12.addConstraint(Sketcher.Constraint("Tangent", 7, 2, 8, 2))
sketch12.addConstraint(Sketcher.Constraint("Tangent", 8, 1, 9, 1))
sketch12.addConstraint(Sketcher.Constraint("Coincident", 9, 2, 5, 1))
sketch12.addConstraint(Sketcher.Constraint("Vertical", 2))
sketch12.addConstraint(Sketcher.Constraint("Horizontal", 3))
sketch12.addConstraint(Sketcher.Constraint("Vertical", 4))
sketch12.addConstraint(Sketcher.Constraint("Vertical", 5))
sketch12.addConstraint(Sketcher.Constraint("Horizontal", 6))
sketch12.addConstraint(Sketcher.Constraint("Vertical", 7))
sketch12.addConstraint(Sketcher.Constraint("Equal", 1, 8))
sketch12.addConstraint(Sketcher.Constraint("Symmetric", 1, 3, 8, 3, -2))
sketch12.addConstraint(Sketcher.Constraint("Symmetric", 3, 2, 5, 2, -2))
sketch12.addConstraint(Sketcher.Constraint("Perpendicular", 0, 9))
sketch12.addConstraint(Sketcher.Constraint("Horizontal", 0, 2, 8, 1))
sketch12.addConstraint(Sketcher.Constraint("Radius", 1, Q("0.0300001 in")))
sketch12.addConstraint(Sketcher.Constraint("DistanceY", 2, 2, 2, 1, Q("0.5 in")))
sketch12.addConstraint(Sketcher.Constraint("DistanceX", 3, 2, 5, 2, Q("1.5 in")))
sketch12.addConstraint(Sketcher.Constraint("DistanceX", 3, 2, 3, 1, Q("2.7685 mm")))
sketch12.addConstraint(Sketcher.Constraint("DistanceY", 1, 3, -1, 1, Q("168.885 mm")))
pocket5 = body.newObject("PartDesign::Pocket", "Pocket004")
pocket5.Profile = sketch12
pocket5.Type = "ThroughAll"
pocket5.Midplane = True
body2 = doc.addObject("PartDesign::Body", "Body001")

sketch13 = body2.newObject("Sketcher::SketchObject", "Sketch012")
sketch13.AttachmentSupport = (doc.getObject("XZ_Plane001"), [""])
sketch13.MapMode = "FlatFace"
sketch13.AttachmentOffset = App.Placement(V(0, 0, -18.11), App.Rotation())
sketch13.addGeometry(Part.Circle(V(-36.6268, 24.4983, 0), V(0, 0, 1), 0.9271), False)
sketch13.addGeometry(Part.LineSegment(V(-41.402, 24.4983, 0), V(-41.402, 14.4983, 0)), True)
sketch13.addConstraint(Sketcher.Constraint("Vertical", 1))
sketch13.addConstraint(Sketcher.Constraint("Horizontal", 0, 3, 1, 1))
sketch13.addConstraint(Sketcher.Constraint("Diameter", 0, Q("0.073 in")))
sketch13.addConstraint(Sketcher.Constraint("DistanceX", 1, 1, -1, 1, Q("1.63 in")))
sketch13.addConstraint(Sketcher.Constraint("DistanceX", 0, 3, -1, 1, Q("1.442 in")))
sketch13.addConstraint(Sketcher.Constraint("DistanceY", 1, 2, 1, 1, Q("10 mm")))
sketch13.addConstraint(Sketcher.Constraint("DistanceY", -1, 1, 0, 3, Q("0.9645 in")))
revolution3 = body2.newObject("PartDesign::Revolution", "Revolution002")
revolution3.Profile = sketch13
revolution3.ReferenceAxis = (sketch13, ["Axis0"])
revolution3.Angle = 360
body3 = doc.addObject("PartDesign::Body", "Body002")
doc.recompute()

mirroring = doc.addObject("Part::Mirroring", "Mirroring")
mirroring.Source = body2
mirroring.Base = V(0, 0, 0)
mirroring.Normal = V(0, 1, 0)
body3.BaseFeature = mirroring
doc.recompute()
mirroring.Visibility = False

doc.recompute()
